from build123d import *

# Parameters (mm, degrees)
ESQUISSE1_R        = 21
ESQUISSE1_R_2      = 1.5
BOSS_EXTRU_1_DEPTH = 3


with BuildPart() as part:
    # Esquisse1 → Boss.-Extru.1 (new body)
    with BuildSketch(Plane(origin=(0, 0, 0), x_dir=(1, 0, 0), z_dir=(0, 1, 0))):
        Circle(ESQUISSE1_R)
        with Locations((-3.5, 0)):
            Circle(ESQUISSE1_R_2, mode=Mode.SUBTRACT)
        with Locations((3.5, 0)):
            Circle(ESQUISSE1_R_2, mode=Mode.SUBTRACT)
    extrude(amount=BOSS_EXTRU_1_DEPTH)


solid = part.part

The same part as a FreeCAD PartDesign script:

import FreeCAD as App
import Part
import Sketcher
from FreeCAD import Vector
Q = App.Units.Quantity

doc = App.newDocument("Part")
params = doc.addObject("Spreadsheet::Sheet", "Params")
for row, (alias, value) in enumerate([
    ("sketch1_diameter", "42 mm"),
    ("sketch1_diameter2", "3 mm"),
    ("pad1_length", "3 mm"),
], start=1):
    params.set(f"A{row}", alias)
    params.set(f"B{row}", "=" + value)
    params.setAlias(f"B{row}", alias)

body = doc.addObject("PartDesign::Body", "Body")

sketch1 = body.newObject("Sketcher::SketchObject", "Sketch")
sketch1.AttachmentSupport = (doc.getObject("XZ_Plane"), [""])
sketch1.MapMode = "FlatFace"
sketch1.addGeometry([
    Part.Circle(Vector(0, 0, 0), Vector(0, 0, 1), 21),
    Part.Circle(Vector(-3.5, 0, 0), Vector(0, 0, 1), 1.5),
    Part.Circle(Vector(3.5, 0, 0), Vector(0, 0, 1), 1.5),
], False)
sketch1.addConstraint([
    Sketcher.Constraint("Coincident", 0, 3, -1, 1),
    Sketcher.Constraint("Equal", 1, 2),
    Sketcher.Constraint("Symmetric", 1, 3, 2, 3, -1, 1),
    Sketcher.Constraint("PointOnObject", 1, 3, -1),
    Sketcher.Constraint("Diameter", 0, Q("42 mm")),
    Sketcher.Constraint("Diameter", 1, Q("3 mm")),
    Sketcher.Constraint("DistanceX", 1, 3, 2, 3, Q("7 mm")),
])
sketch1.setExpression("Constraints[4]", "Params.sketch1_diameter")
sketch1.setExpression("Constraints[5]", "Params.sketch1_diameter2")
pad1 = body.newObject("PartDesign::Pad", "Pad")
pad1.Profile = sketch1
pad1.setExpression("Length", "Params.pad1_length")
pad1.Reversed = True

doc.recompute()
